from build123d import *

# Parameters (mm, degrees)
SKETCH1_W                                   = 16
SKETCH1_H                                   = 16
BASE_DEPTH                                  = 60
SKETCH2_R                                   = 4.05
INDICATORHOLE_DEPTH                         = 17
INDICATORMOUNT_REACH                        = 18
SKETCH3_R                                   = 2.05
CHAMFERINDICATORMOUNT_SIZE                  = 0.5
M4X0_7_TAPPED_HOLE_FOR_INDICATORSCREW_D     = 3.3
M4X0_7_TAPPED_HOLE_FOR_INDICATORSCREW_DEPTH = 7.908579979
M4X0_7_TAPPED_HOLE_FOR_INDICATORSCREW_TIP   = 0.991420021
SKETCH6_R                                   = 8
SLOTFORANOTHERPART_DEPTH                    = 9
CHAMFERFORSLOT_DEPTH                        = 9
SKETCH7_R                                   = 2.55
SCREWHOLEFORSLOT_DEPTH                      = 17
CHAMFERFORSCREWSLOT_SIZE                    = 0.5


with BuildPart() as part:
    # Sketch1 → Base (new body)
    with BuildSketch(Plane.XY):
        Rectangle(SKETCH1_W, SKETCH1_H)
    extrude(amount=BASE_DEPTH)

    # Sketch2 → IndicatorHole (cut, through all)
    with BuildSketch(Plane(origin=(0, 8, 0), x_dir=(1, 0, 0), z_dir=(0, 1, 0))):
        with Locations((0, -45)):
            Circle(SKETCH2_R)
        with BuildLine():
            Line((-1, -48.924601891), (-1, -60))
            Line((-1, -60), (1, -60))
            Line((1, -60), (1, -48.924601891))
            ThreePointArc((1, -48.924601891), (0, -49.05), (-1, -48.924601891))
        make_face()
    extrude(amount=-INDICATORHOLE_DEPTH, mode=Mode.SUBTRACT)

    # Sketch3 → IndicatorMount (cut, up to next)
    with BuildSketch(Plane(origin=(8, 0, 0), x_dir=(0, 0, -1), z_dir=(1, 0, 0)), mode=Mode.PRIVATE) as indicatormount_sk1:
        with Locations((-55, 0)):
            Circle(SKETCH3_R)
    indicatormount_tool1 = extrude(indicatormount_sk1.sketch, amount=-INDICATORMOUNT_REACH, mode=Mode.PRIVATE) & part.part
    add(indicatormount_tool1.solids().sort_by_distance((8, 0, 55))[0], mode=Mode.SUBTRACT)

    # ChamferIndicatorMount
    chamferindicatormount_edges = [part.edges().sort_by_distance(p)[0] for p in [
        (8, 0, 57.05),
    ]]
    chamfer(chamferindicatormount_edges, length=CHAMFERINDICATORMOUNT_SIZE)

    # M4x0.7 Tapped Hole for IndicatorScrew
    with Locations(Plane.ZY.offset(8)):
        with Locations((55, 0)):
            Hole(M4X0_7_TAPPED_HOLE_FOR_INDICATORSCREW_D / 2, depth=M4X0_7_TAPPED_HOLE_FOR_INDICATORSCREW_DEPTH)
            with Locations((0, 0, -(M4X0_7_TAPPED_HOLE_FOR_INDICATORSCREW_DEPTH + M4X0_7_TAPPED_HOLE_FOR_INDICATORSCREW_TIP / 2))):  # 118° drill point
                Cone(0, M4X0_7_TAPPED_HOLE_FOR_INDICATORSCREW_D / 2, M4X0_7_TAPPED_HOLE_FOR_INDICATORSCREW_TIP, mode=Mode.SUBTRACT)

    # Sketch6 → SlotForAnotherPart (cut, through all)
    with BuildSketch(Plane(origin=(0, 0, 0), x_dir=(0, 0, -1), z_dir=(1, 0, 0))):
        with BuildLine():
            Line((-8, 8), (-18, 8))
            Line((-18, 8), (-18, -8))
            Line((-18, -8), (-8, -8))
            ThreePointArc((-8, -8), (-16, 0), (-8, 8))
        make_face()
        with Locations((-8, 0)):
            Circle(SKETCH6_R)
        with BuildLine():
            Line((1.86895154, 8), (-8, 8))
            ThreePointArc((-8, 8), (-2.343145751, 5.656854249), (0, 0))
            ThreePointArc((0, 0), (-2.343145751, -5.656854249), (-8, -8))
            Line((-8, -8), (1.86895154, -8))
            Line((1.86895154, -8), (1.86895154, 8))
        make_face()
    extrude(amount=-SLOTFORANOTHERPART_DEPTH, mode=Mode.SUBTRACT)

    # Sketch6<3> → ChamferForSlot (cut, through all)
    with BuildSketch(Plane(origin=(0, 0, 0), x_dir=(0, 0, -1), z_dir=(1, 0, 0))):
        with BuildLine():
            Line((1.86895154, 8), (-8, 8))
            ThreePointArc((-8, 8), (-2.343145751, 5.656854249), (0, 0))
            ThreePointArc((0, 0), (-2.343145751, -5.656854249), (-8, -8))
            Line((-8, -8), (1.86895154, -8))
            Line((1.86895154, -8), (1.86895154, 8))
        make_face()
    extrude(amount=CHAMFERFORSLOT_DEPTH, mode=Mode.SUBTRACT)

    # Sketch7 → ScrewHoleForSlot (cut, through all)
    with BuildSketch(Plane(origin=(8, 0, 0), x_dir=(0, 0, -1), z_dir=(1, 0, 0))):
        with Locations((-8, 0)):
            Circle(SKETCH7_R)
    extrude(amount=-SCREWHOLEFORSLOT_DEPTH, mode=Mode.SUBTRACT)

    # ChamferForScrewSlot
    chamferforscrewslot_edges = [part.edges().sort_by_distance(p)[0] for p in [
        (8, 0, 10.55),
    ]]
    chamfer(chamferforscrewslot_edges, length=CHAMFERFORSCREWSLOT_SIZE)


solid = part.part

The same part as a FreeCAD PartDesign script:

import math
import FreeCAD as App
import Part
import Sketcher


def edges_at(feature, points):
    """Names of the edges that pass closest to the given points."""
    edges = feature.Shape.Edges
    near = lambda p: min(range(len(edges)), key=lambda i: edges[i].distToShape(Part.Vertex(*p))[0])
    return sorted({f"Edge{near(p) + 1}" for p in points})

doc = App.newDocument("Part")
body = doc.addObject("PartDesign::Body", "Body")

sketch1 = body.newObject("Sketcher::SketchObject", "Sketch")
sketch1.AttachmentSupport = (doc.getObject("XY_Plane"), [""])
sketch1.MapMode = "FlatFace"
sketch1.addGeometry([
    Part.LineSegment(App.Vector(-8, 8, 0), App.Vector(-8, -8, 0)),
    Part.LineSegment(App.Vector(-8, -8, 0), App.Vector(8, -8, 0)),
    Part.LineSegment(App.Vector(8, -8, 0), App.Vector(8, 8, 0)),
    Part.LineSegment(App.Vector(8, 8, 0), App.Vector(-8, 8, 0)),
], False)
sketch1.addConstraint([
    Sketcher.Constraint("Coincident", 0, 2, 1, 1),
    Sketcher.Constraint("Coincident", 1, 2, 2, 1),
    Sketcher.Constraint("Coincident", 2, 2, 3, 1),
    Sketcher.Constraint("Coincident", 3, 2, 0, 1),
    Sketcher.Constraint("Vertical", 0),
    Sketcher.Constraint("Horizontal", 1),
    Sketcher.Constraint("Vertical", 2),
    Sketcher.Constraint("Horizontal", 3),
    Sketcher.Constraint("Symmetric", 0, 2, 2, 2, -1, 1),
    Sketcher.Constraint("Equal", 3, 0),
    Sketcher.Constraint("DistanceX", 1, 1, 1, 2, 16.0),
])
pad1 = body.newObject("PartDesign::Pad", "Pad")
pad1.Profile = sketch1
pad1.Length = 60

sketch2 = body.newObject("Sketcher::SketchObject", "Sketch001")
sketch2.AttachmentSupport = (doc.getObject("XZ_Plane"), [""])
sketch2.MapMode = "FlatFace"
sketch2.AttachmentOffset = App.Placement(App.Vector(0, 0, -8), App.Rotation())
sketch2.addGeometry([
    Part.LineSegment(App.Vector(-1, 48.9, 0), App.Vector(-1, 60, 0)),
    Part.LineSegment(App.Vector(-1, 60, 0), App.Vector(1, 60, 0)),
    Part.LineSegment(App.Vector(1, 60, 0), App.Vector(1, 48.9, 0)),
    Part.ArcOfCircle(Part.Circle(App.Vector(0, 45, 0), App.Vector(0, 0, 1), 4), math.radians(104), math.radians(436)),
], False)
sketch2.addConstraint([
    Sketcher.Constraint("Coincident", 0, 2, 1, 1),
    Sketcher.Constraint("Coincident", 1, 2, 2, 1),
    Sketcher.Constraint("Coincident", 2, 2, 3, 2),
    Sketcher.Constraint("Coincident", 3, 1, 0, 1),
    Sketcher.Constraint("Vertical", 0),
    Sketcher.Constraint("Horizontal", 1),
    Sketcher.Constraint("Vertical", 2),
    Sketcher.Constraint("Symmetric", 2, 2, 3, 1, -2),
    Sketcher.Constraint("DistanceX", 1, 1, 1, 2, 2.0),
    Sketcher.Constraint("Radius", 3, 4.05),
    Sketcher.Constraint("DistanceY", -1, 1, 3, 3, 45.0),
    Sketcher.Constraint("DistanceY", -1, 1, 0, 2, 60.0),
])
pocket1 = body.newObject("PartDesign::Pocket", "Pocket")
pocket1.Profile = sketch2
pocket1.Type = "ThroughAll"
pocket1.Reversed = True

sketch3 = body.newObject("Sketcher::SketchObject", "Sketch002")
sketch3.AttachmentSupport = (doc.getObject("YZ_Plane"), [""])
sketch3.MapMode = "FlatFace"
sketch3.AttachmentOffset = App.Placement(App.Vector(0, 0, 8), App.Rotation())
sketch3.addGeometry(Part.Circle(App.Vector(0, 55, 0), App.Vector(0, 0, 1), 2), False)
sketch3.addConstraint([
    Sketcher.Constraint("PointOnObject", 0, 3, -2),
    Sketcher.Constraint("Diameter", 0, 4.1),
    Sketcher.Constraint("DistanceY", -1, 1, 0, 3, 55.0),
])
pocket2 = body.newObject("PartDesign::Pocket", "Pocket001")
pocket2.Profile = sketch3
pocket2.Type = "UpToFirst"
doc.recompute()

chamfer = body.newObject("PartDesign::Chamfer", "Chamfer")
chamfer.Base = (pocket2, edges_at(pocket2, [(8, 0, 57.05)]))
chamfer.Size = 0.5

sketch4 = body.newObject("Sketcher::SketchObject", "Sketch003")
sketch4.AttachmentSupport = (doc.getObject("YZ_Plane"), [""])
sketch4.MapMode = "FlatFace"
sketch4.AttachmentOffset = App.Placement(App.Vector(0, 0, -8), App.Rotation())
sketch4.addGeometry(Part.Circle(App.Vector(0, 55, 0), App.Vector(0, 0, 1), 1.6), False)
sketch4.addConstraint([
    Sketcher.Constraint("PointOnObject", 0, 3, -2),
    Sketcher.Constraint("Diameter", 0, 3.3),
    Sketcher.Constraint("DistanceY", -1, 1, 0, 3, 55.0),
])
doc.recompute()
hole = body.newObject("PartDesign::Hole", "Hole")
hole.Profile = sketch4
hole.ThreadType = "None"
hole.Diameter = 3.3
hole.DepthType = "Dimension"
hole.Depth = 7.90858
hole.DrillPoint = "Angled"
hole.DrillPointAngle = 118
hole.Reversed = True

sketch5 = body.newObject("Sketcher::SketchObject", "Sketch004")
sketch5.AttachmentSupport = (doc.getObject("YZ_Plane"), [""])
sketch5.MapMode = "FlatFace"
sketch5.addGeometry([
    Part.LineSegment(App.Vector(8, 18, 0), App.Vector(-8, 18, 0)),
    Part.LineSegment(App.Vector(-8, 18, 0), App.Vector(-8, -2, 0)),
    Part.LineSegment(App.Vector(-8, -2, 0), App.Vector(8, -2, 0)),
    Part.LineSegment(App.Vector(8, -2, 0), App.Vector(8, 18, 0)),
], False)
sketch5.addConstraint([
    Sketcher.Constraint("Coincident", 0, 2, 1, 1),
    Sketcher.Constraint("Coincident", 1, 2, 2, 1),
    Sketcher.Constraint("Coincident", 2, 2, 3, 1),
    Sketcher.Constraint("Coincident", 3, 2, 0, 1),
    Sketcher.Constraint("Horizontal", 0),
    Sketcher.Constraint("Vertical", 1),
    Sketcher.Constraint("Horizontal", 2),
    Sketcher.Constraint("Vertical", 3),
    Sketcher.Constraint("DistanceX", 0, 2, 0, 1, 16.0),
    Sketcher.Constraint("DistanceX", 0, 2, -1, 1, 8.0),
    Sketcher.Constraint("DistanceY", -1, 1, 0, 2, 18.0),
    Sketcher.Constraint("DistanceY", 1, 2, 1, 1, 19.868952),
])
pocket3 = body.newObject("PartDesign::Pocket", "Pocket002")
pocket3.Profile = sketch5
pocket3.Type = "ThroughAll"

sketch6 = body.newObject("Sketcher::SketchObject", "Sketch005")
sketch6.AttachmentSupport = (doc.getObject("YZ_Plane"), [""])
sketch6.MapMode = "FlatFace"
sketch6.addGeometry([
    Part.LineSegment(App.Vector(8, -2, 0), App.Vector(8, 8, 0)),
    Part.ArcOfCircle(Part.Circle(App.Vector(0, 8, 0), App.Vector(0, 0, 1), 8), math.radians(-90), math.radians(0)),
    Part.ArcOfCircle(Part.Circle(App.Vector(0, 8, 0), App.Vector(0, 0, 1), 8), math.radians(-180), math.radians(-90)),
    Part.LineSegment(App.Vector(-8, 8, 0), App.Vector(-8, -2, 0)),
    Part.LineSegment(App.Vector(-8, -2, 0), App.Vector(8, -2, 0)),
], False)
sketch6.addConstraint([
    Sketcher.Constraint("Tangent", 0, 2, 1, 2),
    Sketcher.Constraint("Tangent", 1, 1, 2, 2),
    Sketcher.Constraint("Tangent", 2, 1, 3, 1),
    Sketcher.Constraint("Coincident", 3, 2, 4, 1),
    Sketcher.Constraint("Coincident", 4, 2, 0, 1),
    Sketcher.Constraint("Vertical", 0),
    Sketcher.Constraint("Vertical", 3),
    Sketcher.Constraint("Horizontal", 4),
    Sketcher.Constraint("Coincident", 1, 1, -1, 1),
    Sketcher.Constraint("Equal", 1, 2),
    Sketcher.Constraint("PointOnObject", 1, 3, -2),
    Sketcher.Constraint("Radius", 1, 8.0),
    Sketcher.Constraint("DistanceY", 0, 1, 0, 2, 9.868952),
])
pocket4 = body.newObject("PartDesign::Pocket", "Pocket003")
pocket4.Profile = sketch6
pocket4.Type = "ThroughAll"
pocket4.Reversed = True

sketch7 = body.newObject("Sketcher::SketchObject", "Sketch006")
sketch7.AttachmentSupport = (doc.getObject("YZ_Plane"), [""])
sketch7.MapMode = "FlatFace"
sketch7.AttachmentOffset = App.Placement(App.Vector(0, 0, 8), App.Rotation())
sketch7.addGeometry(Part.Circle(App.Vector(0, 8, 0), App.Vector(0, 0, 1), 2.5), False)
sketch7.addConstraint([
    Sketcher.Constraint("PointOnObject", 0, 3, -2),
    Sketcher.Constraint("Diameter", 0, 5.1),
    Sketcher.Constraint("DistanceY", -1, 1, 0, 3, 8.0),
])
pocket5 = body.newObject("PartDesign::Pocket", "Pocket004")
pocket5.Profile = sketch7
pocket5.Type = "ThroughAll"
doc.recompute()

chamfer2 = body.newObject("PartDesign::Chamfer", "Chamfer001")
chamfer2.Base = (pocket5, edges_at(pocket5, [(8, 0, 10.55)]))
chamfer2.Size = 0.5

doc.recompute()
